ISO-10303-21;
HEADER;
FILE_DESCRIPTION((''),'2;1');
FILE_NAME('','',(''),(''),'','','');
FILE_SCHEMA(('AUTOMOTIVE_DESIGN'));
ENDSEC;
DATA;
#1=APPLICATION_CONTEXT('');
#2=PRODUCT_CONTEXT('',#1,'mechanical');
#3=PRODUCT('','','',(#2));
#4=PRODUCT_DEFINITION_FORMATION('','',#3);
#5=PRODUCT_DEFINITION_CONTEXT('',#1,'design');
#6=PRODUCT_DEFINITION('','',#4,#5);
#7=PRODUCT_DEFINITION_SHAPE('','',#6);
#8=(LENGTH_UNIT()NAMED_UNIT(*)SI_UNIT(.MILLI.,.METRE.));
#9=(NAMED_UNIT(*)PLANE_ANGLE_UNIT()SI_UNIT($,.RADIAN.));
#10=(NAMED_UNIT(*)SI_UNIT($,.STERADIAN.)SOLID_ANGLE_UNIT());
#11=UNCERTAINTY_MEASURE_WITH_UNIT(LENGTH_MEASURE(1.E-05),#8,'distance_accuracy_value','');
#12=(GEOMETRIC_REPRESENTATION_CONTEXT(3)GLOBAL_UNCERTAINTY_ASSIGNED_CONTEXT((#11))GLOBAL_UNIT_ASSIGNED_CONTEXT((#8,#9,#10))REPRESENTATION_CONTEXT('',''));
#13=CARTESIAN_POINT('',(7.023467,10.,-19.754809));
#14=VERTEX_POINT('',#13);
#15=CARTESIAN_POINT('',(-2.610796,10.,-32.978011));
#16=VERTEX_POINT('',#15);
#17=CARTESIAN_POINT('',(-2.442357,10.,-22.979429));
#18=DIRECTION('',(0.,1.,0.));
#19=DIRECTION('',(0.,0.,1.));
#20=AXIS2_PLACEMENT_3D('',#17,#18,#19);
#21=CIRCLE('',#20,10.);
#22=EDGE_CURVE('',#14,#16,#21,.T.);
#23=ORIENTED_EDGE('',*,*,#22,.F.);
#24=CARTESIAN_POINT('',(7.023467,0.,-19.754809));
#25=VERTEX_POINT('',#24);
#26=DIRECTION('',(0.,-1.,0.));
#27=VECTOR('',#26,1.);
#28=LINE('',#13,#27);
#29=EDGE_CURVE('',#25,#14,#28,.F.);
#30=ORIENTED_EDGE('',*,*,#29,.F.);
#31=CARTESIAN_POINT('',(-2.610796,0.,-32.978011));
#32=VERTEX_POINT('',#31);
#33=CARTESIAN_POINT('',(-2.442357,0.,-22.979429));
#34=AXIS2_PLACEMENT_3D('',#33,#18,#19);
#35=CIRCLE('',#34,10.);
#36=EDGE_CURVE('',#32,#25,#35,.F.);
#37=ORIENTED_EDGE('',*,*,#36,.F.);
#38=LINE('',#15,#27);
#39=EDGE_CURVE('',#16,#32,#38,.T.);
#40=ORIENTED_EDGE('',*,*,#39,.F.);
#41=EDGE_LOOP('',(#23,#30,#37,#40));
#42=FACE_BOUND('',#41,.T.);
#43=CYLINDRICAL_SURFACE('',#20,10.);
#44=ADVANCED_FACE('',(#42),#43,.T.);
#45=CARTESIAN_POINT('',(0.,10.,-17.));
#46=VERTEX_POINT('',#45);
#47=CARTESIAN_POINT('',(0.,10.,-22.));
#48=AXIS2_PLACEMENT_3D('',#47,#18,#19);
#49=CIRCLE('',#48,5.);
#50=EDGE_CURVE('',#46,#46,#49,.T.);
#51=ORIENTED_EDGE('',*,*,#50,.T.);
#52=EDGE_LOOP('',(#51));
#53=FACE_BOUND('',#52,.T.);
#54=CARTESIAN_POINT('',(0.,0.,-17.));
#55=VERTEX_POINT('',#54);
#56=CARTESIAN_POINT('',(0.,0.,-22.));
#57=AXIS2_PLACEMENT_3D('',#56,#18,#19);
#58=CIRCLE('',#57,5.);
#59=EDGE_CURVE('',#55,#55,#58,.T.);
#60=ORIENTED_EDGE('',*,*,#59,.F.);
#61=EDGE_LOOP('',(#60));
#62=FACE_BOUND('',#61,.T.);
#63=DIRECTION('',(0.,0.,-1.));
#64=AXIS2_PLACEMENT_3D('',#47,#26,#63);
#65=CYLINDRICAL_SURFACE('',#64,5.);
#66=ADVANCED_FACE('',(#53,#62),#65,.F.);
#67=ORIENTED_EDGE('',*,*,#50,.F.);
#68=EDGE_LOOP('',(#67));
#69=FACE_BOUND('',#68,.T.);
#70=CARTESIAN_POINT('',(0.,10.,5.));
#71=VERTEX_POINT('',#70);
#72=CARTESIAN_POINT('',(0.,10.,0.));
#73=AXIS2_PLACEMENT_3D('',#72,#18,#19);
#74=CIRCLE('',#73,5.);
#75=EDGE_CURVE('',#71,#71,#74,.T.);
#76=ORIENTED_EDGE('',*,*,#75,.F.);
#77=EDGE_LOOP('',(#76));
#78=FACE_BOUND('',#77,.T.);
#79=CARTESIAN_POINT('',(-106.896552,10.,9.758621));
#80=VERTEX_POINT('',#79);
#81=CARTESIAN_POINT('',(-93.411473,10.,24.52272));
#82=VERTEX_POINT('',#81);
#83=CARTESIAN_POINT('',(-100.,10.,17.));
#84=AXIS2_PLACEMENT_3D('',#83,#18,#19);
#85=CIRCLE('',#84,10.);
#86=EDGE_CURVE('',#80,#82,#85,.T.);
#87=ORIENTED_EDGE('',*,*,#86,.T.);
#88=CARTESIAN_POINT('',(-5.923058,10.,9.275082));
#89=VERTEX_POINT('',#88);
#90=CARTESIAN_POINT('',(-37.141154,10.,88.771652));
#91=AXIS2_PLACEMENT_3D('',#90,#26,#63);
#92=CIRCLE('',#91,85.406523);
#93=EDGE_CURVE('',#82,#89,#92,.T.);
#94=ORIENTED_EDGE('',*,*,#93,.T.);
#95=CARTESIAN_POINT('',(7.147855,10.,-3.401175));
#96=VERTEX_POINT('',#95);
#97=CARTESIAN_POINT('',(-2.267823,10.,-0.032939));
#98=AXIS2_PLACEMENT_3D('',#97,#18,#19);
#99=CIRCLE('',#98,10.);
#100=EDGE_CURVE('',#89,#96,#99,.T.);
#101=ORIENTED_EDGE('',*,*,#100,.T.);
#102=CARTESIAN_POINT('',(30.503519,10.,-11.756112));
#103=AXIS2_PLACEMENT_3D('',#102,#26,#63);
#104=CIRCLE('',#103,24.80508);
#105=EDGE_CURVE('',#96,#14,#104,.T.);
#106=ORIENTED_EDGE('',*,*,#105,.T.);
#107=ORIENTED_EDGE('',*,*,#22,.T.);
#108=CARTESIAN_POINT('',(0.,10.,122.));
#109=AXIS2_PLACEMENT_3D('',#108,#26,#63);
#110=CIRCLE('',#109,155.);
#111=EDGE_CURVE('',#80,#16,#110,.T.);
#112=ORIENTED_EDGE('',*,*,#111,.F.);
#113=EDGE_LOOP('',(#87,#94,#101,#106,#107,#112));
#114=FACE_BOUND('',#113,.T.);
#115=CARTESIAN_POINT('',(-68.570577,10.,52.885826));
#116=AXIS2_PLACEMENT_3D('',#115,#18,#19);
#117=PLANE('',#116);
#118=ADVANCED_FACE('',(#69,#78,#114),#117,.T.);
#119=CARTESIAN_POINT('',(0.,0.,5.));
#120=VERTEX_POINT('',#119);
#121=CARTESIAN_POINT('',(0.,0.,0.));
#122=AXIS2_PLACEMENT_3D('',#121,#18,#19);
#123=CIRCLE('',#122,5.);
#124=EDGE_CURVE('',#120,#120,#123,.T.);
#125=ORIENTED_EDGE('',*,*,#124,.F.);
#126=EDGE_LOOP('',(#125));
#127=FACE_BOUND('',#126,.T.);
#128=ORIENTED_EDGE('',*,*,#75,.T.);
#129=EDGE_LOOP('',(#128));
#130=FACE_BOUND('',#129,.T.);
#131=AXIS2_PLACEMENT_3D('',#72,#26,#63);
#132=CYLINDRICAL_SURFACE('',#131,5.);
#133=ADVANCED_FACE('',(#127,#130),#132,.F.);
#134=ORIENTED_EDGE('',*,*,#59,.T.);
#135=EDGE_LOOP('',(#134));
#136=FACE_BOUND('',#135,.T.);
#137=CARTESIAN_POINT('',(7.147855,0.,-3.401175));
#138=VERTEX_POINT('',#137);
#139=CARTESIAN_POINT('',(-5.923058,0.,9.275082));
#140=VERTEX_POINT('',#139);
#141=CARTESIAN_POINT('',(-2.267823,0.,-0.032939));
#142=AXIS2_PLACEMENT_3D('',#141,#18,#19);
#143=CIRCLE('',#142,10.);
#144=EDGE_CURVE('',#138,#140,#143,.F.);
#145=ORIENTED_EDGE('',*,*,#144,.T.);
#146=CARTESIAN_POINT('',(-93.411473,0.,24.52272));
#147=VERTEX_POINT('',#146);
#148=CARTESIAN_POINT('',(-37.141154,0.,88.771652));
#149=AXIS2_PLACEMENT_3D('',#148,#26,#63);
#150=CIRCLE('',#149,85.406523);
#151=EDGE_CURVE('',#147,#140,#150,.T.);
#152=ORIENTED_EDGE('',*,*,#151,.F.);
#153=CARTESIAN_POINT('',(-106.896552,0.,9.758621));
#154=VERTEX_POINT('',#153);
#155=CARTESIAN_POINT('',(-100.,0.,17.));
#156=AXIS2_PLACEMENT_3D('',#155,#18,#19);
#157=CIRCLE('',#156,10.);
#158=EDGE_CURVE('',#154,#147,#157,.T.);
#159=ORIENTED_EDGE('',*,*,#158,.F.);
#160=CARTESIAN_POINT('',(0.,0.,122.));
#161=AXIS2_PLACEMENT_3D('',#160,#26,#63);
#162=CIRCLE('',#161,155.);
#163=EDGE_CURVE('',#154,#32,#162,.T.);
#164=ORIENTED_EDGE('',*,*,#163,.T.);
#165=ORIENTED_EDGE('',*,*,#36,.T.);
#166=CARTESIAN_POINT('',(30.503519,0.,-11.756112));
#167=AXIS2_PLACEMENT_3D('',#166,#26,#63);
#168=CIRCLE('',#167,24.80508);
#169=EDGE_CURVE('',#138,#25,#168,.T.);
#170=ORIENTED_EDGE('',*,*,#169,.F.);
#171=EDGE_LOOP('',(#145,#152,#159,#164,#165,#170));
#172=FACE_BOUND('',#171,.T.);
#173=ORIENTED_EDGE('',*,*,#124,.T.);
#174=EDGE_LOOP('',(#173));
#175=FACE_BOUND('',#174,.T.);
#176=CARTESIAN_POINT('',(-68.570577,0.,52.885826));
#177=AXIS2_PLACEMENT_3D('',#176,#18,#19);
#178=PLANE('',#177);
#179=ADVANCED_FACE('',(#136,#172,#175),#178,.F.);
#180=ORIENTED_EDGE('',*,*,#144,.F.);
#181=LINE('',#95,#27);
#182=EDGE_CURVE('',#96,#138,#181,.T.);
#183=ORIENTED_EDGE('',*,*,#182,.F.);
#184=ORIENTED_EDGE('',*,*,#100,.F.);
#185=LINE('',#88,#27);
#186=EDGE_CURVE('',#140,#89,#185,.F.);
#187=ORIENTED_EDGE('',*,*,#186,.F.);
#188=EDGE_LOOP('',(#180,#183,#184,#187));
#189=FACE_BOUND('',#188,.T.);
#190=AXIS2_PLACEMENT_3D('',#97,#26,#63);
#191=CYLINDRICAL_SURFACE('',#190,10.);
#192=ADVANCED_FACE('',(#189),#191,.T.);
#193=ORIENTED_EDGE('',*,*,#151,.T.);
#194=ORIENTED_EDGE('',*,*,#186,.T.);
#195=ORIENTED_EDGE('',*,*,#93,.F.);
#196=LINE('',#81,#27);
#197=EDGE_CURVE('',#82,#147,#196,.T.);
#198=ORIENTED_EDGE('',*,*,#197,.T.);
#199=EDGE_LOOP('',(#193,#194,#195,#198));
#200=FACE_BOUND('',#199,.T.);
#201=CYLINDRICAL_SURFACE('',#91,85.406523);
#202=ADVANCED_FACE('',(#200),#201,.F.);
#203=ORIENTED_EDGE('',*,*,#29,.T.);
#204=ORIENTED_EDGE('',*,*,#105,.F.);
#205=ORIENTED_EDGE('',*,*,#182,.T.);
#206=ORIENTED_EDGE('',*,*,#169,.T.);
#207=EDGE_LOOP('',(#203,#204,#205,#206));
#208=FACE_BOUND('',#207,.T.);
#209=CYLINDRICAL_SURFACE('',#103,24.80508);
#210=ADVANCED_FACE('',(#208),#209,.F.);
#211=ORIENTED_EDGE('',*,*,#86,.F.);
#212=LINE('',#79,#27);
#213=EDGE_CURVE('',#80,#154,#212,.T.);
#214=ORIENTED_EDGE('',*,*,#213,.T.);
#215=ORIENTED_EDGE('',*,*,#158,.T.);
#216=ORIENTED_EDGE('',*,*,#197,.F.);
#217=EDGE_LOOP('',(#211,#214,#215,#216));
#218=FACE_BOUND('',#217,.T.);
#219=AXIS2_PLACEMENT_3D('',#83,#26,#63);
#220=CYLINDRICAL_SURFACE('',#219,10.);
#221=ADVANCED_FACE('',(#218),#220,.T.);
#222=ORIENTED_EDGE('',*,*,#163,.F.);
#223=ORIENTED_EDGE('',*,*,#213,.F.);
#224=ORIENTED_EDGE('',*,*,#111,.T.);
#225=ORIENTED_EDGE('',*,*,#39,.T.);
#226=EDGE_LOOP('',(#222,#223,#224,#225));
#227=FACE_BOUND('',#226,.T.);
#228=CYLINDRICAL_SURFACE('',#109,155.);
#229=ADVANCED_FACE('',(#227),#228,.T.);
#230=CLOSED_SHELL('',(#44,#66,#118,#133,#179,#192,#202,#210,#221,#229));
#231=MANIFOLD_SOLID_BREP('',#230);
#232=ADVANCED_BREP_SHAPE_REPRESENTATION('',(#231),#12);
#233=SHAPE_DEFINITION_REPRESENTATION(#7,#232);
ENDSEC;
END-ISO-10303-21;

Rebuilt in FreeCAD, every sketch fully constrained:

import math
import FreeCAD as App
import Part
import Sketcher

V = App.Vector


def edges_at(feature, points):
    """Names of the edges that pass closest to the given points."""
    edges = feature.Shape.Edges
    near = lambda p: min(range(len(edges)), key=lambda i: edges[i].distToShape(Part.Vertex(*p))[0])
    return sorted({f"Edge{near(p) + 1}" for p in points})

doc = App.newDocument("Part")
body = doc.addObject("PartDesign::Body", "Body")

sketch1 = body.newObject("Sketcher::SketchObject", "Sketch")
sketch1.AttachmentSupport = (doc.getObject("XZ_Plane"), [""])
sketch1.MapMode = "FlatFace"
sketch1.addGeometry(Part.ArcOfCircle(Part.Circle(V(0, -22, 0), V(0, 0, 1), 11), math.radians(-90), math.radians(-22)), False)
sketch1.addGeometry(Part.ArcOfCircle(Part.Circle(V(0, 122, 0), V(0, 0, 1), 155), math.radians(-134), math.radians(-90)), False)
sketch1.addGeometry(Part.ArcOfCircle(Part.Circle(V(-100, 17, 0), V(0, 0, 1), 10), math.radians(49), math.radians(226)), False)
sketch1.addGeometry(Part.ArcOfCircle(Part.Circle(V(-37, 89, 0), V(0, 0, 1), 85), math.radians(-131), math.radians(-67)), False)
sketch1.addGeometry(Part.ArcOfCircle(Part.Circle(V(0, 0, 0), V(0, 0, 1), 11), math.radians(15), math.radians(113)), False)
sketch1.addGeometry(Part.ArcOfCircle(Part.Circle(V(31, -12, 0), V(0, 0, 1), 25), math.radians(144), math.radians(215)), False)
sketch1.addGeometry(Part.Circle(V(0, 0, 0), V(0, 0, 1), 5), False)
sketch1.addGeometry(Part.Circle(V(0, -22, 0), V(0, 0, 1), 5), False)
sketch1.addConstraint(Sketcher.Constraint("Tangent", 0, 1, 1, 2))
sketch1.addConstraint(Sketcher.Constraint("Tangent", 1, 1, 2, 2))
sketch1.addConstraint(Sketcher.Constraint("Tangent", 2, 1, 3, 1))
sketch1.addConstraint(Sketcher.Constraint("Tangent", 3, 2, 4, 2))
sketch1.addConstraint(Sketcher.Constraint("Coincident", 4, 1, 5, 1))
sketch1.addConstraint(Sketcher.Constraint("Coincident", 5, 2, 0, 2))
sketch1.addConstraint(Sketcher.Constraint("Coincident", 4, 3, -1, 1))
sketch1.addConstraint(Sketcher.Constraint("Coincident", 6, 3, -1, 1))
sketch1.addConstraint(Sketcher.Constraint("Coincident", 7, 3, 0, 3))
sketch1.addConstraint(Sketcher.Constraint("Equal", 6, 7))
sketch1.addConstraint(Sketcher.Constraint("PointOnObject", 0, 3, -2))
sketch1.addConstraint(Sketcher.Constraint("PointOnObject", 1, 3, -2))
sketch1.addConstraint(Sketcher.Constraint("Diameter", 6, 10.0))
sketch1.addConstraint(Sketcher.Constraint("Radius", 0, 11.0))
sketch1.addConstraint(Sketcher.Constraint("Radius", 1, 155.0))
sketch1.addConstraint(Sketcher.Constraint("Radius", 2, 10.0))
sketch1.addConstraint(Sketcher.Constraint("DistanceY", 0, 3, -1, 1, 22.0))
sketch1.addConstraint(Sketcher.Constraint("DistanceX", 2, 3, -1, 1, 100.0))
sketch1.addConstraint(Sketcher.Constraint("Radius", 5, 24.80508))
sketch1.addConstraint(Sketcher.Constraint("Radius", 3, 85.406523))
sketch1.addConstraint(Sketcher.Constraint("Radius", 4, 10.821703))
sketch1.addConstraint(Sketcher.Constraint("DistanceX", -1, 1, 5, 3, 30.503519))
sketch1.addConstraint(Sketcher.Constraint("DistanceY", 5, 3, -1, 1, 11.756112))
pad1 = body.newObject("PartDesign::Pad", "Pad")
pad1.Profile = sketch1
pad1.Length = 10
pad1.Reversed = True
doc.recompute()

fillet = body.newObject("PartDesign::Fillet", "Fillet")
fillet.Base = (pad1, edges_at(pad1, [(10.444, 5, 2.835), (10.229, 5, -26.047)]))
fillet.Radius = 10

doc.recompute()
